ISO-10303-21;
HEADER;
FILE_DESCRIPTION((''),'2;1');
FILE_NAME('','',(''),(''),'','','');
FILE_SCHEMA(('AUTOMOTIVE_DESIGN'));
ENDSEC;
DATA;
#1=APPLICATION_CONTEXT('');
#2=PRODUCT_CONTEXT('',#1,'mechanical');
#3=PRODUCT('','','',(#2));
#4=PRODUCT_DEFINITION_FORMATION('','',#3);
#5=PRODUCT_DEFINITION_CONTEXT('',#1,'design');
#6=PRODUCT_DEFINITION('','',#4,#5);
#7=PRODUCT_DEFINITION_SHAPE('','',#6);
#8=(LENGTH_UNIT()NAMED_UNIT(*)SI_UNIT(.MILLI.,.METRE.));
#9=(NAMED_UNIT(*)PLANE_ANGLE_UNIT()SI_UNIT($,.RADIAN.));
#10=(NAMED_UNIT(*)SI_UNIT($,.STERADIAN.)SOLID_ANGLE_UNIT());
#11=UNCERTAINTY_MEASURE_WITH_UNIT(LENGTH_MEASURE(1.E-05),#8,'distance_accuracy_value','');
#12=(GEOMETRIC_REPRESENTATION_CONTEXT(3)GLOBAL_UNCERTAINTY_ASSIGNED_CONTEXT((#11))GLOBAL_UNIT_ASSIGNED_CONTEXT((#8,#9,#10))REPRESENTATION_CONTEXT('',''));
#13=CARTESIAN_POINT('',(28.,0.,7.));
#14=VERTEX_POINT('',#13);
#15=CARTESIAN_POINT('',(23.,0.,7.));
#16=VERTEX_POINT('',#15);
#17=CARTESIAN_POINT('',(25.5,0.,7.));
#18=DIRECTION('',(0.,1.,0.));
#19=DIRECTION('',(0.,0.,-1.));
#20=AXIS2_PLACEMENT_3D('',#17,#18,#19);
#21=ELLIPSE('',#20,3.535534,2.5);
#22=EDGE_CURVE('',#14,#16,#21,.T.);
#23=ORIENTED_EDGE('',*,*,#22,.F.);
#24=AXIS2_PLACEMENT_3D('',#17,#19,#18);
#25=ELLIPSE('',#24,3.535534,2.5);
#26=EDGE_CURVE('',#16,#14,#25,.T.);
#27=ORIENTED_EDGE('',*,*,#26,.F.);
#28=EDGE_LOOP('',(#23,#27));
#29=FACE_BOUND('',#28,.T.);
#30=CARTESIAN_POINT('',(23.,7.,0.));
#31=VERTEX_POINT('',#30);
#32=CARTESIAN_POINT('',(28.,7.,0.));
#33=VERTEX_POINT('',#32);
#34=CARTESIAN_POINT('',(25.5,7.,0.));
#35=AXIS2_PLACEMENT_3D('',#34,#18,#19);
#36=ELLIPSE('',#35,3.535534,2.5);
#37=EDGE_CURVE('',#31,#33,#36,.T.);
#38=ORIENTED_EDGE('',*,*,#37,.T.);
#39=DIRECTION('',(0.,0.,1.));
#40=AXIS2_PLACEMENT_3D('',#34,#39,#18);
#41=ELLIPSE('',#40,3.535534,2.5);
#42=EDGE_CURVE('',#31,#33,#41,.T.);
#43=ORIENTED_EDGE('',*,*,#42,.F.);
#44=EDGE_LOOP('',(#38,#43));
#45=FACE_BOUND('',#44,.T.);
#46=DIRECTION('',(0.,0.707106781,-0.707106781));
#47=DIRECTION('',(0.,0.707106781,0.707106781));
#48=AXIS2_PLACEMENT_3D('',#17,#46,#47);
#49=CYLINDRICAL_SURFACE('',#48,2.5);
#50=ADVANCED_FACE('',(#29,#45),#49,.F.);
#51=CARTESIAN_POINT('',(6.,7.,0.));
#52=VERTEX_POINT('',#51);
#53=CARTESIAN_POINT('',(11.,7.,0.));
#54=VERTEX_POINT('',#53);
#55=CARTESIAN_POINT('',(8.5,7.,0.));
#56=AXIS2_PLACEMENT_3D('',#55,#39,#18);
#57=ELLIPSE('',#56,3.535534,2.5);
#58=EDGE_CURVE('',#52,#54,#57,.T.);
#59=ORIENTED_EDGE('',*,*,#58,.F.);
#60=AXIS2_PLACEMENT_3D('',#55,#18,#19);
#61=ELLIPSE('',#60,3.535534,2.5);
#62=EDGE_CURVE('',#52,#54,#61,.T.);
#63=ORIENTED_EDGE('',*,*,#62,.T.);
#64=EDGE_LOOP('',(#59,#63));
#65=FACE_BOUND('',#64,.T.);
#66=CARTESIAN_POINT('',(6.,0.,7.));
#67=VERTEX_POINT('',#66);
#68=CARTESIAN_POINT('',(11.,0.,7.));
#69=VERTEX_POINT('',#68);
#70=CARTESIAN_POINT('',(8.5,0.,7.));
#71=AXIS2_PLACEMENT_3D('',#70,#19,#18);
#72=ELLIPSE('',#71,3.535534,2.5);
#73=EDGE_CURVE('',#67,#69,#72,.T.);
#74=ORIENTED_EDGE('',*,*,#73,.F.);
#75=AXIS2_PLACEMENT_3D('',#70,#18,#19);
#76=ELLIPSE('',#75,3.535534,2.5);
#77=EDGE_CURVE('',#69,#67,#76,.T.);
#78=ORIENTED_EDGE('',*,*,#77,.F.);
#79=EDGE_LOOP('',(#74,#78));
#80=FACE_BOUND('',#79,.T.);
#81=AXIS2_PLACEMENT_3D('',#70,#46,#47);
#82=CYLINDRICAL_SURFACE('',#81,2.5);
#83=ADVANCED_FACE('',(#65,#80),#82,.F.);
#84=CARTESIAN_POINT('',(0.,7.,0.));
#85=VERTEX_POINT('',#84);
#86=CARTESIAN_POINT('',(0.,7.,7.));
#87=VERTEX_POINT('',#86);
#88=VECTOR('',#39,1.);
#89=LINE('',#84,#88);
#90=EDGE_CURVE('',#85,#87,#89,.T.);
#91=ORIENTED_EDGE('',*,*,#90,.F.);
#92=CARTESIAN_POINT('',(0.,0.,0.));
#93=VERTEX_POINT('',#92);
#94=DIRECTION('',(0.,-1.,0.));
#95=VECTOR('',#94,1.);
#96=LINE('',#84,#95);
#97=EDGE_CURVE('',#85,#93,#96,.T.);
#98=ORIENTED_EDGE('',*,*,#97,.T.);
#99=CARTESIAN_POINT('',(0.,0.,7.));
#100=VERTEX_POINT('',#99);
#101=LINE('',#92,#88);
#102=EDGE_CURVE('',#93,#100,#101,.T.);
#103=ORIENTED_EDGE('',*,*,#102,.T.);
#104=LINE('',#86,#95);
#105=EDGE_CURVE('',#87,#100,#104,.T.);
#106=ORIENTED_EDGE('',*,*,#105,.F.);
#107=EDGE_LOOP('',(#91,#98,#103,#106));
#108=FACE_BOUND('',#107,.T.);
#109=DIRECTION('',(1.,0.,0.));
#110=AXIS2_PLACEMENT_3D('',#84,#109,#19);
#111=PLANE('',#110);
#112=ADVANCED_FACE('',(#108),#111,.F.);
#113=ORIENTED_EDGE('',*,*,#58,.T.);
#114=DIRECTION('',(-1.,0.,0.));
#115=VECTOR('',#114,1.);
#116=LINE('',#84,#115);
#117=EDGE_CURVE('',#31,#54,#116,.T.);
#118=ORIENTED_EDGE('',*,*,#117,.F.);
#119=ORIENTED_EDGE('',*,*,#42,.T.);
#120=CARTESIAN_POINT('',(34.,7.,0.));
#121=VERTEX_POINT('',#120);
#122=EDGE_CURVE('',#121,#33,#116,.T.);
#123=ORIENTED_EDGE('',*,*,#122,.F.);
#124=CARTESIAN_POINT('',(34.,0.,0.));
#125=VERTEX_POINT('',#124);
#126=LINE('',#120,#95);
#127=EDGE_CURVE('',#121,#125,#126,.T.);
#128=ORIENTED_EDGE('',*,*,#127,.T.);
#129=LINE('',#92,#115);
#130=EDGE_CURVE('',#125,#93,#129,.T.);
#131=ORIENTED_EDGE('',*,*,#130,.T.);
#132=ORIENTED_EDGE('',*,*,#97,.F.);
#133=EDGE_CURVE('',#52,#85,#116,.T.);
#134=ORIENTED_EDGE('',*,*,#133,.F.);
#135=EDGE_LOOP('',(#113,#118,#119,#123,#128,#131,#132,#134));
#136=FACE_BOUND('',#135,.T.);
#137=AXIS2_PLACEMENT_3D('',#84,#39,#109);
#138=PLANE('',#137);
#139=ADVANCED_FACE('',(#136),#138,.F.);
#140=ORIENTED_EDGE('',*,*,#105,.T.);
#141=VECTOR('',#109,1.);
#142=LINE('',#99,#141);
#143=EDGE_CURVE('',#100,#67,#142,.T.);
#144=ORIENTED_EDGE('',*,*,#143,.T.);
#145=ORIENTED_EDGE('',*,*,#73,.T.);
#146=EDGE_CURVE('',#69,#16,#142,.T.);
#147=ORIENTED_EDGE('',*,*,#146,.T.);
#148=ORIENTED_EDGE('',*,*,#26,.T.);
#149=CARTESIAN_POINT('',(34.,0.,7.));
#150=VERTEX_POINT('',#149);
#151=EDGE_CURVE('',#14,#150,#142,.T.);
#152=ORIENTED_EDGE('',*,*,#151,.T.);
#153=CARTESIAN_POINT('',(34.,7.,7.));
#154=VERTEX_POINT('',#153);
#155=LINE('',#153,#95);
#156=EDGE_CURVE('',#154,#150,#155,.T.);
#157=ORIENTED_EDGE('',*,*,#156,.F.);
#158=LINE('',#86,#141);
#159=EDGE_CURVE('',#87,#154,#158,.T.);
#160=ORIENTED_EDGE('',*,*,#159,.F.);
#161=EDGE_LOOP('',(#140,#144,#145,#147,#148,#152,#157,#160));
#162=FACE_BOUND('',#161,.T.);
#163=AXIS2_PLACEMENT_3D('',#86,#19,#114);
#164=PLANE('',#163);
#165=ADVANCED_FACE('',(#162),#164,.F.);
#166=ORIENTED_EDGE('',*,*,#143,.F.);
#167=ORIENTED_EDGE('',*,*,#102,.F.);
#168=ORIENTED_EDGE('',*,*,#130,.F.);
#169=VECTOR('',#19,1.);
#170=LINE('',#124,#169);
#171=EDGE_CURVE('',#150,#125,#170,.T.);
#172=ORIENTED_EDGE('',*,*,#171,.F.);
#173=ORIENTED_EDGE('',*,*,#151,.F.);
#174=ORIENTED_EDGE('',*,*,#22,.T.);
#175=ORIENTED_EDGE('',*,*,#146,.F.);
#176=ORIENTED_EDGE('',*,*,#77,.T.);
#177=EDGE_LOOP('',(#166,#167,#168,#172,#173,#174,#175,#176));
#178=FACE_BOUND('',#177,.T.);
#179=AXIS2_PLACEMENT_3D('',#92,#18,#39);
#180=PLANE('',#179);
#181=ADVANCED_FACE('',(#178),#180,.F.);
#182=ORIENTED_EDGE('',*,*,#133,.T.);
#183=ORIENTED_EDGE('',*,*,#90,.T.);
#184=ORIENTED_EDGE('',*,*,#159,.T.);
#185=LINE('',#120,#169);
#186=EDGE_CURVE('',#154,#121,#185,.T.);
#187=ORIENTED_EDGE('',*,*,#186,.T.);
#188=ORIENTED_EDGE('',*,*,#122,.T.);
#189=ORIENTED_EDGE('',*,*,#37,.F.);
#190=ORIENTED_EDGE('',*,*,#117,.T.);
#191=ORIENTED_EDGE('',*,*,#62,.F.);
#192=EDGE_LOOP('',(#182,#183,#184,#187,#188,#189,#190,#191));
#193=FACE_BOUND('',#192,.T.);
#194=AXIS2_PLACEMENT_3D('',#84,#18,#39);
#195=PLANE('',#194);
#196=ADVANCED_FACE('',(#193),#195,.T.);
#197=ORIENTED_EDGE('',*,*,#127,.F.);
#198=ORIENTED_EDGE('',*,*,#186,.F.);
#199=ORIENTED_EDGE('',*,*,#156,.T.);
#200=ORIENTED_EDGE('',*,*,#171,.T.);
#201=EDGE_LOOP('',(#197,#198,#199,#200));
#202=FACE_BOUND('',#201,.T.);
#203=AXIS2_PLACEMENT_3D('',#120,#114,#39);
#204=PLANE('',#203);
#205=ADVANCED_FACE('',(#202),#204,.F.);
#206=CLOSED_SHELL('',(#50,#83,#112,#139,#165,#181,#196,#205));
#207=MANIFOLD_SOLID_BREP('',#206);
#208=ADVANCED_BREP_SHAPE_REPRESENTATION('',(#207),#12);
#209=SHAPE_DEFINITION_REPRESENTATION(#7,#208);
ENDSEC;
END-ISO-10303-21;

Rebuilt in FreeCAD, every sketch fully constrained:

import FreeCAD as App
import Part
import Sketcher
from FreeCAD import Vector
Q = App.Units.Quantity


def add_polygon(sketch, points):
    """Adds a closed chain of lines whose ends are joined by coincident constraints."""
    first, n = sketch.GeometryCount, len(points)
    for a, b in zip(points, points[1:] + points[:1]):
        sketch.addGeometry(Part.LineSegment(App.Vector(*a, 0), App.Vector(*b, 0)), False)
    for i in range(n):
        sketch.addConstraint(Sketcher.Constraint("Coincident", first + i, 2, first + (i + 1) % n, 1))

doc = App.newDocument("Part")
body = doc.addObject("PartDesign::Body", "Body")

sketch1 = body.newObject("Sketcher::SketchObject", "Sketch")
sketch1.AttachmentSupport = (doc.getObject("XZ_Plane"), [""])
sketch1.MapMode = "FlatFace"
add_polygon(sketch1, [(0, 0), (0, 7), (34, 7), (34, 0)])
sketch1.addConstraint([
    Sketcher.Constraint("Vertical", 0),
    Sketcher.Constraint("Horizontal", 1),
    Sketcher.Constraint("Vertical", 2),
    Sketcher.Constraint("Horizontal", 3),
    Sketcher.Constraint("Coincident", 3, 2, -1, 1),
    Sketcher.Constraint("DistanceX", 1, 1, 1, 2, Q("34 mm")),
    Sketcher.Constraint("DistanceY", 0, 1, 0, 2, Q("7 mm")),
])
pad1 = body.newObject("PartDesign::Pad", "Pad")
pad1.Profile = sketch1
pad1.Length = 7
pad1.Reversed = True

sketch2 = body.newObject("Sketcher::SketchObject", "Sketch001")
sketch2.Placement = App.Placement(Vector(0, 0, 0), App.Rotation(Vector(-1, 0, 0), Vector(0, 0.707106781, 0.707106781), Vector(0, 0.707106781, -0.707106781), "ZXY"))
add_polygon(sketch2, [(-38.5, 14.4), (-38.5, -4.5), (4.5, -4.5), (4.5, 14.4)])
add_polygon(sketch2, [(0, 0), (-34, 0), (-34, 9.9), (0, 9.9)])
sketch2.addGeometry(Part.Circle(Vector(-25.5, 4.9, 0), Vector(0, 0, 1), 2.5), False)
sketch2.addGeometry(Part.Circle(Vector(-8.5, 4.9, 0), Vector(0, 0, 1), 2.5), False)
sketch2.addConstraint([
    Sketcher.Constraint("Vertical", 0),
    Sketcher.Constraint("Horizontal", 1),
    Sketcher.Constraint("Vertical", 2),
    Sketcher.Constraint("Horizontal", 3),
    Sketcher.Constraint("Horizontal", 4),
    Sketcher.Constraint("Vertical", 5),
    Sketcher.Constraint("Horizontal", 6),
    Sketcher.Constraint("Vertical", 7),
    Sketcher.Constraint("Coincident", 7, 2, -1, 1),
    Sketcher.Constraint("Equal", 8, 9),
    Sketcher.Constraint("Horizontal", 8, 3, 9, 3),
    Sketcher.Constraint("Diameter", 8, Q("5 mm")),
    Sketcher.Constraint("DistanceX", 4, 2, 4, 1, Q("34 mm")),
    Sketcher.Constraint("DistanceX", 8, 3, 9, 3, Q("17 mm")),
    Sketcher.Constraint("DistanceX", 8, 3, -1, 1, Q("25.5 mm")),
    Sketcher.Constraint("DistanceX", 1, 1, 1, 2, Q("43.082 mm")),
    Sketcher.Constraint("DistanceY", 0, 2, 0, 1, Q("18.981 mm")),
    Sketcher.Constraint("DistanceY", -1, 1, 2, 2, Q("14.44 mm")),
    Sketcher.Constraint("DistanceX", 0, 2, -1, 1, Q("38.541 mm")),
    Sketcher.Constraint("DistanceY", 5, 1, 5, 2, Q("9.899495 mm")),
    Sketcher.Constraint("DistanceY", -1, 1, 8, 3, Q("4.949747 mm")),
])
pocket1 = body.newObject("PartDesign::Pocket", "Pocket")
pocket1.Profile = sketch2
pocket1.Type = "ThroughAll"
pocket1.Midplane = True

doc.recompute()
